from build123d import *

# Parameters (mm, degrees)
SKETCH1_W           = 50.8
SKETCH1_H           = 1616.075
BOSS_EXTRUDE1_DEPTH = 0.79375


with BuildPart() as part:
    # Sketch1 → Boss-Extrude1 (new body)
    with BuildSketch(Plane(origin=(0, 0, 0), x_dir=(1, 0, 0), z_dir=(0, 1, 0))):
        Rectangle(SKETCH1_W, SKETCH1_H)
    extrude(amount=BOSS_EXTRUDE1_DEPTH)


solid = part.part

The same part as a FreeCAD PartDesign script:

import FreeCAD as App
import Part
import Sketcher

V = App.Vector
Q = App.Units.Quantity


def add_polygon(sketch, points):
    """Adds a closed chain of lines whose ends are joined by coincident constraints."""
    first, n = sketch.GeometryCount, len(points)
    for a, b in zip(points, points[1:] + points[:1]):
        sketch.addGeometry(Part.LineSegment(App.Vector(*a, 0), App.Vector(*b, 0)), False)
    for i in range(n):
        sketch.addConstraint(Sketcher.Constraint("Coincident", first + i, 2, first + (i + 1) % n, 1))

doc = App.newDocument("Part")
params = doc.addObject("Spreadsheet::Sheet", "Params")
for row, (alias, value) in enumerate([
    ("sketch1_width", "2 in"),
    ("sketch1_height", "63.625 in"),
    ("pad1_length", "0.03125 in"),
], start=1):
    params.set(f"A{row}", alias)
    params.set(f"B{row}", "=" + value)
    params.setAlias(f"B{row}", alias)

body = doc.addObject("PartDesign::Body", "Body")

sketch1 = body.newObject("Sketcher::SketchObject", "Sketch")
sketch1.AttachmentSupport = (doc.getObject("XZ_Plane"), [""])
sketch1.MapMode = "FlatFace"
add_polygon(sketch1, [(-25, -808), (-25, 808), (25, 808), (25, -808)])
sketch1.addConstraint([
    Sketcher.Constraint("Vertical", 0),
    Sketcher.Constraint("Horizontal", 1),
    Sketcher.Constraint("Vertical", 2),
    Sketcher.Constraint("Horizontal", 3),
    Sketcher.Constraint("Symmetric", 0, 2, 2, 2, -1, 1),
    Sketcher.Constraint("DistanceX", 1, 1, 1, 2, Q("2 in")),
    Sketcher.Constraint("DistanceY", 0, 1, 0, 2, Q("63.625 in")),
])
sketch1.setExpression("Constraints[9]", "Params.sketch1_width")
sketch1.setExpression("Constraints[10]", "Params.sketch1_height")
pad1 = body.newObject("PartDesign::Pad", "Pad")
pad1.Profile = sketch1
pad1.setExpression("Length", "Params.pad1_length")
pad1.Reversed = True

doc.recompute()
